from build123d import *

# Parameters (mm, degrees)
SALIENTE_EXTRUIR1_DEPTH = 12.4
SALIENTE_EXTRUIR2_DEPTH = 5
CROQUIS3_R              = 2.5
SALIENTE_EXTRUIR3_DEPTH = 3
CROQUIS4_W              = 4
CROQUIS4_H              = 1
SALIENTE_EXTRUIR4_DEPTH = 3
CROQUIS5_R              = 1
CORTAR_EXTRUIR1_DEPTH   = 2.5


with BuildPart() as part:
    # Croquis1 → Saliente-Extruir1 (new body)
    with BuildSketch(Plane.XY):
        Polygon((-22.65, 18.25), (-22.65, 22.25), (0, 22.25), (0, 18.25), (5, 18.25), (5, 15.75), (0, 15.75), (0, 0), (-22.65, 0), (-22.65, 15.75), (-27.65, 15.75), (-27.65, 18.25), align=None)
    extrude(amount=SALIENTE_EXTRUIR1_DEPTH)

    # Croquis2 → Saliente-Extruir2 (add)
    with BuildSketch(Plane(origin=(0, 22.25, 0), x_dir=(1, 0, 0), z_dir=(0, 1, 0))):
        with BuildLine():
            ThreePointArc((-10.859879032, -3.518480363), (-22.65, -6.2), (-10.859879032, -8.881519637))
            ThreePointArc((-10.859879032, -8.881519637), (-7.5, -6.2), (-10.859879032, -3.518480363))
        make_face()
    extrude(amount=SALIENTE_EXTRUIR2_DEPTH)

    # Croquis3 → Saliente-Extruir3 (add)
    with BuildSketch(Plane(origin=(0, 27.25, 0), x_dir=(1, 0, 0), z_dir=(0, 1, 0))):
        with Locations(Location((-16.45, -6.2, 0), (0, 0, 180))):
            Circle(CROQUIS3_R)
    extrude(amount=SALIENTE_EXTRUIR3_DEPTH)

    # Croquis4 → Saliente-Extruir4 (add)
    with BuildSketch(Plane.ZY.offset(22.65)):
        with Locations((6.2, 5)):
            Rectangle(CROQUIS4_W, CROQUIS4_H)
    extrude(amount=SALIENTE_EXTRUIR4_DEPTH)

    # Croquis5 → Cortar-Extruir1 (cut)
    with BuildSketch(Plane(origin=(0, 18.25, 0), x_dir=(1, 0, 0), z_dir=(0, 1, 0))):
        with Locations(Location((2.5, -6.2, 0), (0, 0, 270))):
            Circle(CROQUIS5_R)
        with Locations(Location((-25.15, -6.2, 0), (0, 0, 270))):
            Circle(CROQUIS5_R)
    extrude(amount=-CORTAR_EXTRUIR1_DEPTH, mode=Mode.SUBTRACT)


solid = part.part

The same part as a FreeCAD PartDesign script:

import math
import FreeCAD as App
import Part
import Sketcher

V = App.Vector
Q = App.Units.Quantity


def add_polygon(sketch, points):
    """Adds a closed chain of lines whose ends are joined by coincident constraints."""
    first, n = sketch.GeometryCount, len(points)
    for a, b in zip(points, points[1:] + points[:1]):
        sketch.addGeometry(Part.LineSegment(App.Vector(*a, 0), App.Vector(*b, 0)), False)
    for i in range(n):
        sketch.addConstraint(Sketcher.Constraint("Coincident", first + i, 2, first + (i + 1) % n, 1))

doc = App.newDocument("Part")
body = doc.addObject("PartDesign::Body", "Body")

sketch1 = doc.addObject("Sketcher::SketchObject", "Sketch")
body.addObject(sketch1)
sketch1.AttachmentSupport = (doc.XY_Plane, [""])
sketch1.MapMode = "FlatFace"
add_polygon(sketch1, [(-22.65, 22.25), (-22.65, 18.25), (-27.65, 18.25), (-27.65, 15.75), (-22.65, 15.75), (-22.65, 0), (0, 0), (0, 15.75), (5, 15.75), (5, 18.25), (0, 18.25), (0, 22.25)])
sketch1.addConstraint([
    Sketcher.Constraint("Vertical", 0),
    Sketcher.Constraint("Horizontal", 1),
    Sketcher.Constraint("Vertical", 2),
    Sketcher.Constraint("Horizontal", 3),
    Sketcher.Constraint("Vertical", 4),
    Sketcher.Constraint("Horizontal", 5),
    Sketcher.Constraint("Vertical", 6),
    Sketcher.Constraint("Horizontal", 7),
    Sketcher.Constraint("Vertical", 8),
    Sketcher.Constraint("Horizontal", 9),
    Sketcher.Constraint("Vertical", 10),
    Sketcher.Constraint("Horizontal", 11),
    Sketcher.Constraint("Coincident", 5, 2, -1, 1),
    Sketcher.Constraint("PointOnObject", 9, 2, -2),
    Sketcher.Constraint("Horizontal", 3, 2, 6, 2),
    Sketcher.Constraint("Horizontal", 1, 2, 8, 2),
    Sketcher.Constraint("Vertical", 0, 2, 3, 2),
    Sketcher.Constraint("Equal", 3, 7),
    Sketcher.Constraint("DistanceX", 1, 2, 1, 1, Q("5 mm")),
    Sketcher.Constraint("DistanceY", 0, 2, 0, 1, Q("4 mm")),
    Sketcher.Constraint("DistanceY", 2, 2, 2, 1, Q("2.5 mm")),
    Sketcher.Constraint("DistanceX", 5, 1, 5, 2, Q("22.65 mm")),
    Sketcher.Constraint("DistanceY", 4, 2, 4, 1, Q("15.75 mm")),
])
pad1 = doc.addObject("PartDesign::Pad", "Pad")
body.addObject(pad1)
pad1.Profile = sketch1
pad1.Length = 12.4

sketch2 = doc.addObject("Sketcher::SketchObject", "Sketch001")
body.addObject(sketch2)
sketch2.AttachmentSupport = (doc.XZ_Plane, [""])
sketch2.MapMode = "FlatFace"
sketch2.AttachmentOffset = App.Placement(V(0, 0, -22.25), App.Rotation())
sketch2.addGeometry([
    Part.ArcOfCircle(Part.Circle(V(-16.45, 6.2, 0), V(0, 0, 1), 6.2), math.radians(25.626523), math.radians(334.373477)),
    Part.ArcOfCircle(Part.Circle(V(-10.25, 6.2, 0), V(0, 0, 1), 2.75), math.radians(-102.813261), math.radians(102.813261)),
], False)
sketch2.addConstraint([
    Sketcher.Constraint("Coincident", 0, 1, 1, 2),
    Sketcher.Constraint("Coincident", 1, 1, 0, 2),
    Sketcher.Constraint("Horizontal", 0, 3, 1, 3),
    Sketcher.Constraint("Radius", 0, Q("6.2 mm")),
    Sketcher.Constraint("Radius", 1, Q("2.75 mm")),
    Sketcher.Constraint("DistanceY", -1, 1, 0, 3, Q("6.2 mm")),
    Sketcher.Constraint("DistanceX", 0, 3, 1, 3, Q("6.2 mm")),
    Sketcher.Constraint("DistanceX", 0, 3, -1, 1, Q("16.45 mm")),
])
pad2 = doc.addObject("PartDesign::Pad", "Pad001")
body.addObject(pad2)
pad2.Profile = sketch2
pad2.Length = 5
pad2.Reversed = True

sketch3 = doc.addObject("Sketcher::SketchObject", "Sketch002")
body.addObject(sketch3)
sketch3.AttachmentSupport = (doc.XZ_Plane, [""])
sketch3.MapMode = "FlatFace"
sketch3.AttachmentOffset = App.Placement(V(0, 0, -27.25), App.Rotation())
sketch3.addGeometry(Part.Circle(V(-16.45, 6.2, 0), V(0, 0, 1), 2.5), False)
sketch3.addConstraint([
    Sketcher.Constraint("Diameter", 0, Q("5 mm")),
    Sketcher.Constraint("DistanceY", -1, 1, 0, 3, Q("6.2 mm")),
    Sketcher.Constraint("DistanceX", 0, 3, -1, 1, Q("16.45 mm")),
])
pad3 = doc.addObject("PartDesign::Pad", "Pad002")
body.addObject(pad3)
pad3.Profile = sketch3
pad3.Length = 3
pad3.Reversed = True

sketch4 = doc.addObject("Sketcher::SketchObject", "Sketch003")
body.addObject(sketch4)
sketch4.AttachmentSupport = (doc.YZ_Plane, [""])
sketch4.MapMode = "FlatFace"
sketch4.AttachmentOffset = App.Placement(V(0, 0, -22.65), App.Rotation())
add_polygon(sketch4, [(5.5, 4.2), (4.5, 4.2), (4.5, 8.2), (5.5, 8.2)])
sketch4.addConstraint([
    Sketcher.Constraint("Horizontal", 0),
    Sketcher.Constraint("Vertical", 1),
    Sketcher.Constraint("Horizontal", 2),
    Sketcher.Constraint("Vertical", 3),
    Sketcher.Constraint("DistanceX", 0, 2, 0, 1, Q("1 mm")),
    Sketcher.Constraint("DistanceY", 1, 1, 1, 2, Q("4 mm")),
    Sketcher.Constraint("DistanceX", -1, 1, 0, 2, Q("4.5 mm")),
    Sketcher.Constraint("DistanceY", -1, 1, 0, 2, Q("4.2 mm")),
])
pad4 = doc.addObject("PartDesign::Pad", "Pad003")
body.addObject(pad4)
pad4.Profile = sketch4
pad4.Length = 3
pad4.Reversed = True

sketch5 = doc.addObject("Sketcher::SketchObject", "Sketch004")
body.addObject(sketch5)
sketch5.AttachmentSupport = (doc.XZ_Plane, [""])
sketch5.MapMode = "FlatFace"
sketch5.AttachmentOffset = App.Placement(V(0, 0, -18.25), App.Rotation())
sketch5.addGeometry([
    Part.Circle(V(2.5, 6.2, 0), V(0, 0, 1), 1),
    Part.Circle(V(-25.15, 6.2, 0), V(0, 0, 1), 1),
], False)
sketch5.addConstraint([
    Sketcher.Constraint("Equal", 0, 1),
    Sketcher.Constraint("Horizontal", 0, 3, 1, 3),
    Sketcher.Constraint("Diameter", 0, Q("2 mm")),
    Sketcher.Constraint("DistanceX", -1, 1, 0, 3, Q("2.5 mm")),
    Sketcher.Constraint("DistanceY", -1, 1, 0, 3, Q("6.2 mm")),
    Sketcher.Constraint("DistanceX", 1, 3, -1, 1, Q("25.15 mm")),
])
pocket1 = doc.addObject("PartDesign::Pocket", "Pocket")
body.addObject(pocket1)
pocket1.Profile = sketch5
pocket1.Length = 2.5
pocket1.Reversed = True

doc.recompute()
